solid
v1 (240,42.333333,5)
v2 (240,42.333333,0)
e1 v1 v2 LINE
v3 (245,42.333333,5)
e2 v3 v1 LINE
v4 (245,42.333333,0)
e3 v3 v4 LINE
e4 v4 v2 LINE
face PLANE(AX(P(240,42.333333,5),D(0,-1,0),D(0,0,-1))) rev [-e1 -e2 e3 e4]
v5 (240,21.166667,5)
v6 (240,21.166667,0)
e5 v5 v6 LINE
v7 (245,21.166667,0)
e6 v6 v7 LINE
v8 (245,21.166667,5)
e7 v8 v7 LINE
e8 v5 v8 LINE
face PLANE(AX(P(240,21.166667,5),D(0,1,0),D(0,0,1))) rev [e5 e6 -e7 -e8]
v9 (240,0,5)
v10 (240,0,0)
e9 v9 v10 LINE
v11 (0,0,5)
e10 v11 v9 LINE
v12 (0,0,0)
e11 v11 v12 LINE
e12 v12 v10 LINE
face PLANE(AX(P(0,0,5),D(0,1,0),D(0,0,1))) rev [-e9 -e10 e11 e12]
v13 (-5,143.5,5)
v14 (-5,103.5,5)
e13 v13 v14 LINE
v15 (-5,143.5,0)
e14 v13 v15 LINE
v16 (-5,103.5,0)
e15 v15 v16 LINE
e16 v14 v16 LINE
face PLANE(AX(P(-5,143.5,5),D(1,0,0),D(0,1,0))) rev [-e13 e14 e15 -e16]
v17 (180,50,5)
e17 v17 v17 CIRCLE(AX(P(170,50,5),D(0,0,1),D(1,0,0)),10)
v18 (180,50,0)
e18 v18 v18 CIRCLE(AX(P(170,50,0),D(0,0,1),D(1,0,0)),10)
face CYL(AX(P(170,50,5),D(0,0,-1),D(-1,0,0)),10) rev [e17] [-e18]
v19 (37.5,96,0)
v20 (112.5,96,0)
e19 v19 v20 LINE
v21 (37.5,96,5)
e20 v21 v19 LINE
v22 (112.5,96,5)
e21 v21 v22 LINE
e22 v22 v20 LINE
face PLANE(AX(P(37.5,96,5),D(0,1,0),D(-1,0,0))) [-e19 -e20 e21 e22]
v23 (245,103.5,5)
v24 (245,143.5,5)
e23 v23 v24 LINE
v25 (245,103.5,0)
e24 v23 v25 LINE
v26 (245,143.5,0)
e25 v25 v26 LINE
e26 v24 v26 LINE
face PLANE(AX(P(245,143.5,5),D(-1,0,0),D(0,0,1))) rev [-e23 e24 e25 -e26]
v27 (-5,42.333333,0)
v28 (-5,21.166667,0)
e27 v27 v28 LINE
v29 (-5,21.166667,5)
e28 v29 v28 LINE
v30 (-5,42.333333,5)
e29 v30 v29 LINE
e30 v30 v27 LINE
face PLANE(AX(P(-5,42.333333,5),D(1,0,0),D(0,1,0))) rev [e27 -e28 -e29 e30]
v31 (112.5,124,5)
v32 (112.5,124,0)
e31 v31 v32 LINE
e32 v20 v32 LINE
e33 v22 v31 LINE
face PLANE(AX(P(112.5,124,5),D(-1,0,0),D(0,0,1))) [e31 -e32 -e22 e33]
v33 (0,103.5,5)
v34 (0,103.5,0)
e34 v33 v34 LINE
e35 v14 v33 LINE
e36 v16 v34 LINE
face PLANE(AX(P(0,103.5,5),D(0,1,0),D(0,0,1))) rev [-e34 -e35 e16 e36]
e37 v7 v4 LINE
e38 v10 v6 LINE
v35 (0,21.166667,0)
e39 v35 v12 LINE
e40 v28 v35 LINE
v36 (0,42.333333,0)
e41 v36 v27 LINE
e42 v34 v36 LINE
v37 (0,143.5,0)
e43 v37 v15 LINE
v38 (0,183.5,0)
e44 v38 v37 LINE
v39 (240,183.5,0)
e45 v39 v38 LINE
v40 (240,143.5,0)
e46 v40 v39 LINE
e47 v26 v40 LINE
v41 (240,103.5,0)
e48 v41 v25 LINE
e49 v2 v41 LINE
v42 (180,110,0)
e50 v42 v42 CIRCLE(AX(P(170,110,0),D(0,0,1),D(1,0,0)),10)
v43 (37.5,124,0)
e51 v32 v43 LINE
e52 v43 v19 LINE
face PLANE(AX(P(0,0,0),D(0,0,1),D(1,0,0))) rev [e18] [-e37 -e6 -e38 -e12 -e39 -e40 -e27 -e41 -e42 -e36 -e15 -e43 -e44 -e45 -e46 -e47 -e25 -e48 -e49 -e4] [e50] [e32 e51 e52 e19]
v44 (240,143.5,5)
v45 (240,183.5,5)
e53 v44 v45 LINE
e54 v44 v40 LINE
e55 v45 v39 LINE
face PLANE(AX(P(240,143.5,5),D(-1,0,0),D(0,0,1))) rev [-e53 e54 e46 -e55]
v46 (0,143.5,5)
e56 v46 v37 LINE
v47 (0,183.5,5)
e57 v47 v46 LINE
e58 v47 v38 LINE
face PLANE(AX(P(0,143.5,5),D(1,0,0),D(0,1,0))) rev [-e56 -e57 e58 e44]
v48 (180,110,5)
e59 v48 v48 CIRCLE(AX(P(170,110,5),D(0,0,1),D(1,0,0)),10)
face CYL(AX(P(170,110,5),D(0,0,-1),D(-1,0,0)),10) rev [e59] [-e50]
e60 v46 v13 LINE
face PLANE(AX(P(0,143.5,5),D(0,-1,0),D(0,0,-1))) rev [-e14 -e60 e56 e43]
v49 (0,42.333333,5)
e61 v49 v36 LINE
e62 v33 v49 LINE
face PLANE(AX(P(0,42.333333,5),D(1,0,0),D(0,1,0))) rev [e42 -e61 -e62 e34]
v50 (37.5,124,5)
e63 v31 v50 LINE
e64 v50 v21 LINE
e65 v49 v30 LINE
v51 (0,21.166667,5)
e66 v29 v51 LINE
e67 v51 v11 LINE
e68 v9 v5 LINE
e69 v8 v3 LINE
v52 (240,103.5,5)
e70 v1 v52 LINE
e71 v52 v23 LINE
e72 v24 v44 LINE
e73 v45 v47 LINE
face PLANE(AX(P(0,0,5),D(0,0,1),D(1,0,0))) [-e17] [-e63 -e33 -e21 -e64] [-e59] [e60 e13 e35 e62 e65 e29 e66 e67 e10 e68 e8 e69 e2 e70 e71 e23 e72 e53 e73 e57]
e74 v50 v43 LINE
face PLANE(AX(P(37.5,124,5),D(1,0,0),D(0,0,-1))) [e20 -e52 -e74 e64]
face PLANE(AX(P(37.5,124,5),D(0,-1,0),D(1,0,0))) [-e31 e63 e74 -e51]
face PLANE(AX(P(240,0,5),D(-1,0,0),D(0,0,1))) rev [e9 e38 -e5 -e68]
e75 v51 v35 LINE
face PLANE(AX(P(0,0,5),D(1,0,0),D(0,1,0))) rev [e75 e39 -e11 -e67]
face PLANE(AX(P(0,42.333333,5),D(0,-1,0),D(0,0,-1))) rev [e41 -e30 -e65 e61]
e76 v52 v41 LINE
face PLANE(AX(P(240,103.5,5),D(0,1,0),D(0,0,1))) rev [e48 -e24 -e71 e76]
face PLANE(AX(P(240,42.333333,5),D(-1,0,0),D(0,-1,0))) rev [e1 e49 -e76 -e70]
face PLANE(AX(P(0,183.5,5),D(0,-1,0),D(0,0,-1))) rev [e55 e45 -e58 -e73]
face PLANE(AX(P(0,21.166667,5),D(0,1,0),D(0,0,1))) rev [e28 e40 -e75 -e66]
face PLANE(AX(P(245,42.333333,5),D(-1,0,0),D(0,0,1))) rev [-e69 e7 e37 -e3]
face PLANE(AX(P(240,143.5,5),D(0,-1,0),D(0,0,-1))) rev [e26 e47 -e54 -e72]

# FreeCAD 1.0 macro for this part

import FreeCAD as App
import Part
import Sketcher
from FreeCAD import Vector
Q = App.Units.Quantity


def add_polygon(sketch, points):
    """Adds a closed chain of lines whose ends are joined by coincident constraints."""
    first, n = sketch.GeometryCount, len(points)
    for a, b in zip(points, points[1:] + points[:1]):
        sketch.addGeometry(Part.LineSegment(App.Vector(*a, 0), App.Vector(*b, 0)), False)
    for i in range(n):
        sketch.addConstraint(Sketcher.Constraint("Coincident", first + i, 2, first + (i + 1) % n, 1))

doc = App.newDocument("Part")
body = doc.addObject("PartDesign::Body", "Body")

# Sketch on XY plane
sketch1 = body.newObject("Sketcher::SketchObject", "Sketch")
sketch1.AttachmentSupport = (doc.getObject("XY_Plane"), [""])
sketch1.MapMode = "FlatFace"
add_polygon(sketch1, [(0, 184), (0, 144), (-5, 144), (-5, 104), (0, 104), (0, 42), (-5, 42), (-5, 21), (0, 21), (0, 0), (240, 0), (240, 21), (245, 21), (245, 42), (240, 42), (240, 104), (245, 104), (245, 144), (240, 144), (240, 184)])  # lines 0-19
sketch1.addGeometry(Part.Circle(Vector(170, 50, 0), Vector(0, 0, 1), 10), False)  # 20
sketch1.addGeometry(Part.Circle(Vector(170, 110, 0), Vector(0, 0, 1), 10), False)  # 21
add_polygon(sketch1, [(38, 96), (38, 124), (112, 124), (112, 96)])  # lines 22-25
sketch1.addConstraint(Sketcher.Constraint("Vertical", 0))
sketch1.addConstraint(Sketcher.Constraint("Horizontal", 1))
sketch1.addConstraint(Sketcher.Constraint("Vertical", 2))
sketch1.addConstraint(Sketcher.Constraint("Horizontal", 3))
sketch1.addConstraint(Sketcher.Constraint("Vertical", 4))
sketch1.addConstraint(Sketcher.Constraint("Horizontal", 5))
sketch1.addConstraint(Sketcher.Constraint("Vertical", 6))
sketch1.addConstraint(Sketcher.Constraint("Horizontal", 7))
sketch1.addConstraint(Sketcher.Constraint("Vertical", 8))
sketch1.addConstraint(Sketcher.Constraint("Horizontal", 9))
sketch1.addConstraint(Sketcher.Constraint("Vertical", 10))
sketch1.addConstraint(Sketcher.Constraint("Horizontal", 11))
sketch1.addConstraint(Sketcher.Constraint("Vertical", 12))
sketch1.addConstraint(Sketcher.Constraint("Horizontal", 13))
sketch1.addConstraint(Sketcher.Constraint("Vertical", 14))
sketch1.addConstraint(Sketcher.Constraint("Horizontal", 15))
sketch1.addConstraint(Sketcher.Constraint("Vertical", 16))
sketch1.addConstraint(Sketcher.Constraint("Horizontal", 17))
sketch1.addConstraint(Sketcher.Constraint("Vertical", 18))
sketch1.addConstraint(Sketcher.Constraint("Horizontal", 19))
sketch1.addConstraint(Sketcher.Constraint("Vertical", 22))
sketch1.addConstraint(Sketcher.Constraint("Horizontal", 23))
sketch1.addConstraint(Sketcher.Constraint("Vertical", 24))
sketch1.addConstraint(Sketcher.Constraint("Horizontal", 25))
sketch1.addConstraint(Sketcher.Constraint("Coincident", 8, 2, -1, 1))
sketch1.addConstraint(Sketcher.Constraint("Equal", 20, 21))
sketch1.addConstraint(Sketcher.Constraint("PointOnObject", 0, 2, -2))
sketch1.addConstraint(Sketcher.Constraint("PointOnObject", 3, 2, -2))
sketch1.addConstraint(Sketcher.Constraint("Horizontal", 7, 2, 10, 2))
sketch1.addConstraint(Sketcher.Constraint("Horizontal", 5, 2, 12, 2))
sketch1.addConstraint(Sketcher.Constraint("Horizontal", 3, 2, 14, 2))
sketch1.addConstraint(Sketcher.Constraint("Horizontal", 1, 2, 16, 2))
sketch1.addConstraint(Sketcher.Constraint("Vertical", 20, 3, 21, 3))
sketch1.addConstraint(Sketcher.Constraint("Vertical", 2, 2, 5, 2))
sketch1.addConstraint(Sketcher.Constraint("Vertical", 10, 2, 13, 2))
sketch1.addConstraint(Sketcher.Constraint("Vertical", 12, 2, 15, 2))
sketch1.addConstraint(Sketcher.Constraint("Vertical", 14, 2, 17, 2))
sketch1.addConstraint(Sketcher.Constraint("Equal", 7, 11))
sketch1.addConstraint(Sketcher.Constraint("Equal", 0, 2))
sketch1.addConstraint(Sketcher.Constraint("Equal", 6, 8))
sketch1.addConstraint(Sketcher.Constraint("Diameter", 20, Q("20 mm")))
sketch1.addConstraint(Sketcher.Constraint("DistanceX", 1, 2, 1, 1, Q("5 mm")))
sketch1.addConstraint(Sketcher.Constraint("DistanceX", 9, 1, 9, 2, Q("240 mm")))
sketch1.addConstraint(Sketcher.Constraint("DistanceX", 23, 1, 23, 2, Q("75 mm")))
sketch1.addConstraint(Sketcher.Constraint("DistanceY", 0, 2, 0, 1, Q("40 mm")))
sketch1.addConstraint(Sketcher.Constraint("DistanceY", 22, 1, 22, 2, Q("28 mm")))
sketch1.addConstraint(Sketcher.Constraint("DistanceX", -1, 1, 20, 3, Q("170 mm")))
sketch1.addConstraint(Sketcher.Constraint("DistanceY", -1, 1, 20, 3, Q("50 mm")))
sketch1.addConstraint(Sketcher.Constraint("DistanceY", -1, 1, 21, 3, Q("110 mm")))
sketch1.addConstraint(Sketcher.Constraint("DistanceY", -1, 1, 22, 2, Q("124 mm")))
sketch1.addConstraint(Sketcher.Constraint("DistanceY", -1, 1, 0, 2, Q("143.5 mm")))
sketch1.addConstraint(Sketcher.Constraint("DistanceX", -1, 1, 22, 2, Q("37.5 mm")))
sketch1.addConstraint(Sketcher.Constraint("DistanceY", 4, 2, 4, 1, Q("61.166667 mm")))
pad1 = body.newObject("PartDesign::Pad", "Pad")
pad1.Profile = sketch1
pad1.Length = 5

doc.recompute()
